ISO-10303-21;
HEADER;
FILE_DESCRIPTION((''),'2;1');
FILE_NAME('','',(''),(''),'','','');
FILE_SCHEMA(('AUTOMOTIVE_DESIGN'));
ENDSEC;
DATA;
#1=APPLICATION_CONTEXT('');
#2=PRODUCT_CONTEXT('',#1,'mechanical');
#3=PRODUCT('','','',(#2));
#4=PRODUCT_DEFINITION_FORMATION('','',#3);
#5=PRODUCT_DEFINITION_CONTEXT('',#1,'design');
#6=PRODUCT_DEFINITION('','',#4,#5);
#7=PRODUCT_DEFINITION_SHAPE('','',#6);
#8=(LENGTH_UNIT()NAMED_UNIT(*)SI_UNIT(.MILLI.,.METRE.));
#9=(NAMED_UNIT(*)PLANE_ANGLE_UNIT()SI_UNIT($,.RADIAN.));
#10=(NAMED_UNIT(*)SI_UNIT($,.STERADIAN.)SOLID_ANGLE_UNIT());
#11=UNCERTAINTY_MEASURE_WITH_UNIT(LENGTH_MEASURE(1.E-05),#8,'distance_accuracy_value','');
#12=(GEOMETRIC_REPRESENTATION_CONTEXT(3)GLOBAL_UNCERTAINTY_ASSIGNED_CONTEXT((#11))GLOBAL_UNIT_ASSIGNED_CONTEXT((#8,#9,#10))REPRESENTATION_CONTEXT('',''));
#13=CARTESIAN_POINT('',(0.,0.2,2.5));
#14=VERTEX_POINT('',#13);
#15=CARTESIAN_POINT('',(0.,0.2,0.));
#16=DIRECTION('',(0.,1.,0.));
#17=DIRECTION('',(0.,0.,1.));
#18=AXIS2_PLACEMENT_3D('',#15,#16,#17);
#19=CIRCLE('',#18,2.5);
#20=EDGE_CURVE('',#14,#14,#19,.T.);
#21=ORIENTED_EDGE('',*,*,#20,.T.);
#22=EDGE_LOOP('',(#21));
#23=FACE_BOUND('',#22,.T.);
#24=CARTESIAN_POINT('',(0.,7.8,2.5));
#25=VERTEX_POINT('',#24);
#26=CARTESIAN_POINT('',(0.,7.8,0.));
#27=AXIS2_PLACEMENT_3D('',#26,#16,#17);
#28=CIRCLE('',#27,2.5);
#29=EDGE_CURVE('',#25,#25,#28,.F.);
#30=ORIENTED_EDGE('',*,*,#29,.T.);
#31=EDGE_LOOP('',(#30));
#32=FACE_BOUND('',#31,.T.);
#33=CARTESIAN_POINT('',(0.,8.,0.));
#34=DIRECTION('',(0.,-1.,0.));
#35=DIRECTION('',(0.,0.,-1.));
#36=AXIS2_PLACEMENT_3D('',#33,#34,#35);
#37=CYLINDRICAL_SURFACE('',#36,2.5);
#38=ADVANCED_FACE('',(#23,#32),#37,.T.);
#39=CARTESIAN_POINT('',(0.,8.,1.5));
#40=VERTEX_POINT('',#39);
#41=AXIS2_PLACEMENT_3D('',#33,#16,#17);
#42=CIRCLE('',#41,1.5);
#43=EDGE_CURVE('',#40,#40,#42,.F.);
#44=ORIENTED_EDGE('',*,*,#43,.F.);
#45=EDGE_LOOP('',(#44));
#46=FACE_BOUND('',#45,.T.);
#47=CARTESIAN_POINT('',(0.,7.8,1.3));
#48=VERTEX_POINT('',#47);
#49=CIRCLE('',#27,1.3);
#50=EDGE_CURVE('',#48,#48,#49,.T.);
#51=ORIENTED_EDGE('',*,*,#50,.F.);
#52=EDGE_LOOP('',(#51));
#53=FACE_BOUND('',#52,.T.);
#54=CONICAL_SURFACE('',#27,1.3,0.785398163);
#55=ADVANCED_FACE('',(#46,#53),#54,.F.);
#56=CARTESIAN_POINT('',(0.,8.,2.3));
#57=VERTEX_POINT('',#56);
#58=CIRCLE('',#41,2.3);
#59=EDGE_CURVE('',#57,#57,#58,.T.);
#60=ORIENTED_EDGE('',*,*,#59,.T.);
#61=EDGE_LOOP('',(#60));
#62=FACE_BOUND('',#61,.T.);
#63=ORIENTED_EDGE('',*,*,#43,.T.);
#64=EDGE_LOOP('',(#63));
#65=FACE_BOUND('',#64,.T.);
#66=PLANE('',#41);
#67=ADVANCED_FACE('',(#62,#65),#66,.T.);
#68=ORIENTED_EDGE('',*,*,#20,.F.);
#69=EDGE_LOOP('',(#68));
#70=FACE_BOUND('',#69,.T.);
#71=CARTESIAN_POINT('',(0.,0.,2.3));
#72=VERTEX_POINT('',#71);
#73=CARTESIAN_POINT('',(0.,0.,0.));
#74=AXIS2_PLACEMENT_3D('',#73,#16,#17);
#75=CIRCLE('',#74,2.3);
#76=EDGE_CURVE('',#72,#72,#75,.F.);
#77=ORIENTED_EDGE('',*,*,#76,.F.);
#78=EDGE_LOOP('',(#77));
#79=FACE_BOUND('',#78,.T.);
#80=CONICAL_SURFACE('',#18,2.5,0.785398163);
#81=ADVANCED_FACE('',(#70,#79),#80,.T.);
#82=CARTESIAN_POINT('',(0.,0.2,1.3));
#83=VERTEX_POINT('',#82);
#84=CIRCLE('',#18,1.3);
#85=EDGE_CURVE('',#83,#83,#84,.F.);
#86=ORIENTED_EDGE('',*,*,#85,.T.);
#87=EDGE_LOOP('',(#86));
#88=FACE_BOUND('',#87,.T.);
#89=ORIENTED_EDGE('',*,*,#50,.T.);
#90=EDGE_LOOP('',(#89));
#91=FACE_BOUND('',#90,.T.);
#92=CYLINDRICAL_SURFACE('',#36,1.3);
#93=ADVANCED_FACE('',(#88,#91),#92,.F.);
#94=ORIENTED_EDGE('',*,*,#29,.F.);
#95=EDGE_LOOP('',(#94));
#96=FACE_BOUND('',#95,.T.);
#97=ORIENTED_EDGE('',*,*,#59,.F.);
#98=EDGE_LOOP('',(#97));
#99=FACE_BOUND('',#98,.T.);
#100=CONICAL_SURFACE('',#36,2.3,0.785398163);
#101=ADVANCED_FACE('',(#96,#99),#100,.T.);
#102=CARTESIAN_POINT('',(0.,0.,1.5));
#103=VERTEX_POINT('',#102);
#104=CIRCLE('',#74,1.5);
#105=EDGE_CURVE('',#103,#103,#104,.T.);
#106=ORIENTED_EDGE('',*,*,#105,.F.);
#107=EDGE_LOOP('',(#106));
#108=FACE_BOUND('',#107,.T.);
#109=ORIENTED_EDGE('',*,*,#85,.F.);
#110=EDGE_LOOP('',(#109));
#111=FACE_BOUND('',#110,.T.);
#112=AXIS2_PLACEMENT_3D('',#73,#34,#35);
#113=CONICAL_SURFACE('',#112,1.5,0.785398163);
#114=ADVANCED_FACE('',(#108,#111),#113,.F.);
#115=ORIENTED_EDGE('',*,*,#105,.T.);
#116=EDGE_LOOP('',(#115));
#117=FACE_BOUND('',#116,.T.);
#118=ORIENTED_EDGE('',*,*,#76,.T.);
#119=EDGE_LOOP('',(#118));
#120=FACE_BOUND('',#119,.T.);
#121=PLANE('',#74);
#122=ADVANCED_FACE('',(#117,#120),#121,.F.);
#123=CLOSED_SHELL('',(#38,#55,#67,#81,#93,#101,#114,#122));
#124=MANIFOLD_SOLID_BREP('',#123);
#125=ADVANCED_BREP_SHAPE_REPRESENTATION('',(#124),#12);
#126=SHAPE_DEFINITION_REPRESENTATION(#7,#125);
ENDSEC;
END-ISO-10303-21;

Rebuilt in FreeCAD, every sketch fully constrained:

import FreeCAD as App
import Part
import Sketcher


def edges_at(feature, points):
    """Names of the edges that pass closest to the given points."""
    edges = feature.Shape.Edges
    near = lambda p: min(range(len(edges)), key=lambda i: edges[i].distToShape(Part.Vertex(*p))[0])
    return sorted({f"Edge{near(p) + 1}" for p in points})

doc = App.newDocument("Part")
body = doc.addObject("PartDesign::Body", "Body")

# Sketch on XZ plane
sketch1 = body.newObject("Sketcher::SketchObject", "Sketch")
sketch1.AttachmentSupport = (doc.getObject("XZ_Plane"), [""])
sketch1.MapMode = "FlatFace"
sketch1.addGeometry(Part.Circle(App.Vector(0, 0, 0), App.Vector(0, 0, 1), 2.5), False)
sketch1.addGeometry(Part.Circle(App.Vector(0, 0, 0), App.Vector(0, 0, 1), 1.3), False)
sketch1.addConstraint(Sketcher.Constraint("Coincident", 0, 3, -1, 1))
sketch1.addConstraint(Sketcher.Constraint("Coincident", 1, 3, -1, 1))
sketch1.addConstraint(Sketcher.Constraint("Diameter", 0, 5.0))
sketch1.addConstraint(Sketcher.Constraint("Diameter", 1, 2.6))
pad1 = body.newObject("PartDesign::Pad", "Pad")
pad1.Profile = sketch1
pad1.Length = 8
pad1.Reversed = True
doc.recompute()

chamfer = body.newObject("PartDesign::Chamfer", "Chamfer")
chamfer.Base = (pad1, edges_at(pad1, [
    (-2.5, 0, 0),
    (-2.5, 8, 0),
    (-1.3, 0, 0),
    (-1.3, 8, 0),
]))
chamfer.Size = 0.2

doc.recompute()
